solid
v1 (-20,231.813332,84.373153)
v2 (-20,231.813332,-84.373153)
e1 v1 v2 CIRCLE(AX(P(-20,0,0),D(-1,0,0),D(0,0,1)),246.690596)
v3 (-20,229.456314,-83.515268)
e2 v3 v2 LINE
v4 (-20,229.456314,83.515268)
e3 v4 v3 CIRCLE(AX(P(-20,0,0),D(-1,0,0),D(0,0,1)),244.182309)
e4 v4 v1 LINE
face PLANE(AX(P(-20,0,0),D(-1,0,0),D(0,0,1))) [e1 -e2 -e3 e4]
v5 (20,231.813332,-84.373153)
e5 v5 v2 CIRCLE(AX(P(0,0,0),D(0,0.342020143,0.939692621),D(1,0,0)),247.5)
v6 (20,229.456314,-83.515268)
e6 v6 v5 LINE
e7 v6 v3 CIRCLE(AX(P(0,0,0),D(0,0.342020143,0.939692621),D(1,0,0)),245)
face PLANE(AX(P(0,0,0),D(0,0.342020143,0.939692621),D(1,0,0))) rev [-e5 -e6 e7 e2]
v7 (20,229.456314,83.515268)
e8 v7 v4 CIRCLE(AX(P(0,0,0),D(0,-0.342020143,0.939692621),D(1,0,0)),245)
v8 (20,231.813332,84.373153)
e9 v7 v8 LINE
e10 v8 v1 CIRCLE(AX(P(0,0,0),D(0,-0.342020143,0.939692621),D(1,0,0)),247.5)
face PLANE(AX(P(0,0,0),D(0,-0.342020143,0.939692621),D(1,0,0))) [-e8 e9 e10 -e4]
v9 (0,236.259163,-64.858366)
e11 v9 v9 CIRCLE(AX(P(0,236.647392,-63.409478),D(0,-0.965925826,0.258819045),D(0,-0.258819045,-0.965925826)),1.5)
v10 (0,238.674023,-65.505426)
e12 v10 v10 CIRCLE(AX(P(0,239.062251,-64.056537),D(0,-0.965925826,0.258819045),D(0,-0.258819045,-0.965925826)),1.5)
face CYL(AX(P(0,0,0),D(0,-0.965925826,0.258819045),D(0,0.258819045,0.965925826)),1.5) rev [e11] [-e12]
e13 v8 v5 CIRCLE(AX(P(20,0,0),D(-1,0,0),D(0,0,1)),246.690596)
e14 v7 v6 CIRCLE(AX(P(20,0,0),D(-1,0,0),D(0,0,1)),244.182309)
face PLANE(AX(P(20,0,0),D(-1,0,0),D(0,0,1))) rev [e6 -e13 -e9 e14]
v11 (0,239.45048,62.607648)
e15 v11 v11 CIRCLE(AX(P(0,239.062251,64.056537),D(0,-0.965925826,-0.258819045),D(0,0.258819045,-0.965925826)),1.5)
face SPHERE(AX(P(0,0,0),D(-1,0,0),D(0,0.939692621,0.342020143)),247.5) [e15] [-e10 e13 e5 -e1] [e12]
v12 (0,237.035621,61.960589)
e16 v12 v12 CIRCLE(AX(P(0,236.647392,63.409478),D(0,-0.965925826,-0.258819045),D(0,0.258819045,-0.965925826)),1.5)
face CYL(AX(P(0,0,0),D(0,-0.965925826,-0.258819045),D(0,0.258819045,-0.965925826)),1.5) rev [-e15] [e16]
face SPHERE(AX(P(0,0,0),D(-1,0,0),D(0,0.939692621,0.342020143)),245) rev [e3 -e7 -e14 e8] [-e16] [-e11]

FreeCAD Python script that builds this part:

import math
import FreeCAD as App
import Part
import Sketcher
from FreeCAD import Vector
Q = App.Units.Quantity

doc = App.newDocument("Part")
body = doc.addObject("PartDesign::Body", "Body")

# Sketch on XY plane
sketch1 = doc.addObject("Sketcher::SketchObject", "Sketch")
body.addObject(sketch1)
sketch1.AttachmentSupport = (doc.XY_Plane, [""])
sketch1.MapMode = "FlatFace"
sketch1.addGeometry([
    Part.ArcOfCircle(Part.Circle(Vector(0, 0, 0), Vector(0, 0, 1), 245), math.radians(90), math.radians(94.682417)),  # 0
    Part.ArcOfCircle(Part.Circle(Vector(0, 0, 0), Vector(0, 0, 1), 245), math.radians(85.317583), math.radians(90)),  # 1
    Part.LineSegment(Vector(20, 244.182309, 0), Vector(20, 246.690596, 0)),  # 2
    Part.ArcOfCircle(Part.Circle(Vector(0, 0, 0), Vector(0, 0, 1), 247.5), math.radians(85.364984), math.radians(90)),  # 3
    Part.ArcOfCircle(Part.Circle(Vector(0, 0, 0), Vector(0, 0, 1), 247.5), math.radians(90), math.radians(94.635016)),  # 4
    Part.LineSegment(Vector(-20, 246.690596, 0), Vector(-20, 244.182309, 0)),  # 5
], False)
sketch1.addConstraint([
    Sketcher.Constraint("Tangent", 0, 1, 1, 2),
    Sketcher.Constraint("Coincident", 1, 1, 2, 1),
    Sketcher.Constraint("Coincident", 2, 2, 3, 1),
    Sketcher.Constraint("Tangent", 3, 2, 4, 1),
    Sketcher.Constraint("Coincident", 4, 2, 5, 1),
    Sketcher.Constraint("Coincident", 5, 2, 0, 2),
    Sketcher.Constraint("Vertical", 2),
    Sketcher.Constraint("Vertical", 5),
    Sketcher.Constraint("Coincident", 0, 3, -1, 1),
    Sketcher.Constraint("Coincident", 3, 3, -1, 1),
    Sketcher.Constraint("Equal", 0, 1),
    Sketcher.Constraint("Equal", 3, 4),
    Sketcher.Constraint("PointOnObject", 0, 1, -2),
    Sketcher.Constraint("PointOnObject", 3, 2, -2),
    Sketcher.Constraint("Horizontal", 2, 2, 4, 2),
    Sketcher.Constraint("Radius", 0, Q("245 mm")),
    Sketcher.Constraint("Radius", 3, Q("247.5 mm")),
    Sketcher.Constraint("DistanceX", -1, 1, 1, 1, Q("20 mm")),
])
revolution = doc.addObject("PartDesign::Revolution", "Revolution")
body.addObject(revolution)
revolution.Profile = sketch1
revolution.ReferenceAxis = (sketch1, ["H_Axis"])
revolution.Angle = 20

# Sketch on XY plane
sketch2 = doc.addObject("Sketcher::SketchObject", "Sketch001")
body.addObject(sketch2)
sketch2.AttachmentSupport = (doc.XY_Plane, [""])
sketch2.MapMode = "FlatFace"
sketch2.addGeometry([
    Part.ArcOfCircle(Part.Circle(Vector(0, 0, 0), Vector(0, 0, 1), 245), math.radians(90), math.radians(94.682417)),  # 0
    Part.ArcOfCircle(Part.Circle(Vector(0, 0, 0), Vector(0, 0, 1), 245), math.radians(85.317583), math.radians(90)),  # 1
    Part.LineSegment(Vector(20, 244.182309, 0), Vector(20, 246.690596, 0)),  # 2
    Part.ArcOfCircle(Part.Circle(Vector(0, 0, 0), Vector(0, 0, 1), 247.5), math.radians(85.364984), math.radians(90)),  # 3
    Part.ArcOfCircle(Part.Circle(Vector(0, 0, 0), Vector(0, 0, 1), 247.5), math.radians(90), math.radians(94.635016)),  # 4
    Part.LineSegment(Vector(-20, 246.690596, 0), Vector(-20, 244.182309, 0)),  # 5
], False)
sketch2.addConstraint([
    Sketcher.Constraint("Tangent", 0, 1, 1, 2),
    Sketcher.Constraint("Coincident", 1, 1, 2, 1),
    Sketcher.Constraint("Coincident", 2, 2, 3, 1),
    Sketcher.Constraint("Tangent", 3, 2, 4, 1),
    Sketcher.Constraint("Coincident", 4, 2, 5, 1),
    Sketcher.Constraint("Coincident", 5, 2, 0, 2),
    Sketcher.Constraint("Vertical", 2),
    Sketcher.Constraint("Vertical", 5),
    Sketcher.Constraint("Coincident", 0, 3, -1, 1),
    Sketcher.Constraint("Coincident", 3, 3, -1, 1),
    Sketcher.Constraint("Equal", 0, 1),
    Sketcher.Constraint("Equal", 3, 4),
    Sketcher.Constraint("PointOnObject", 0, 1, -2),
    Sketcher.Constraint("PointOnObject", 3, 2, -2),
    Sketcher.Constraint("Horizontal", 2, 2, 4, 2),
    Sketcher.Constraint("Radius", 0, Q("245 mm")),
    Sketcher.Constraint("Radius", 3, Q("247.5 mm")),
    Sketcher.Constraint("DistanceX", -1, 1, 1, 1, Q("20 mm")),
])
revolution2 = doc.addObject("PartDesign::Revolution", "Revolution001")
body.addObject(revolution2)
revolution2.Profile = sketch2
revolution2.ReferenceAxis = (sketch2, ["H_Axis"])
revolution2.Angle = 20
revolution2.Reversed = True

# Sketch on an angled plane
sketch3 = doc.addObject("Sketcher::SketchObject", "Sketch002")
body.addObject(sketch3)
sketch3.Placement = App.Placement(Vector(0, 0, 0), App.Rotation(Vector(1, 0, 0), Vector(0, 0.965925826, 0.258819045), Vector(0, -0.258819045, 0.965925826), "ZXY"))
sketch3.addGeometry([
    Part.LineSegment(Vector(0, 272.862815, 0), Vector(0, 218.722192, 0)),
    Part.LineSegment(Vector(0, 218.722192, 0), Vector(1.5, 218.722192, 0)),
    Part.LineSegment(Vector(1.5, 218.722192, 0), Vector(1.5, 272.862815, 0)),
    Part.LineSegment(Vector(1.5, 272.862815, 0), Vector(0, 272.862815, 0)),
], False)
sketch3.addConstraint([
    Sketcher.Constraint("Coincident", 0, 2, 1, 1),
    Sketcher.Constraint("Coincident", 1, 2, 2, 1),
    Sketcher.Constraint("Coincident", 2, 2, 3, 1),
    Sketcher.Constraint("Coincident", 3, 2, 0, 1),
    Sketcher.Constraint("Vertical", 0),
    Sketcher.Constraint("Horizontal", 1),
    Sketcher.Constraint("Vertical", 2),
    Sketcher.Constraint("Horizontal", 3),
    Sketcher.Constraint("PointOnObject", 0, 2, -2),
    Sketcher.Constraint("DistanceX", 1, 1, 1, 2, Q("1.5 mm")),
    Sketcher.Constraint("DistanceY", 0, 2, 0, 1, Q("54.140623 mm")),
    Sketcher.Constraint("DistanceY", -1, 1, 0, 2, Q("218.722192 mm")),
])
groove = doc.addObject("PartDesign::Groove", "Groove")
body.addObject(groove)
groove.Profile = sketch3
groove.ReferenceAxis = (sketch3, ["V_Axis"])
groove.Angle = 360
doc.recompute()

polarpattern = doc.addObject("PartDesign::PolarPattern", "PolarPattern")
body.addObject(polarpattern)
polarpattern.Originals = [groove]
polarpattern.Axis = (doc.Y_Axis, [""])
polarpattern.Angle = 360
polarpattern.Occurrences = 2
body.Tip = polarpattern

doc.recompute()
